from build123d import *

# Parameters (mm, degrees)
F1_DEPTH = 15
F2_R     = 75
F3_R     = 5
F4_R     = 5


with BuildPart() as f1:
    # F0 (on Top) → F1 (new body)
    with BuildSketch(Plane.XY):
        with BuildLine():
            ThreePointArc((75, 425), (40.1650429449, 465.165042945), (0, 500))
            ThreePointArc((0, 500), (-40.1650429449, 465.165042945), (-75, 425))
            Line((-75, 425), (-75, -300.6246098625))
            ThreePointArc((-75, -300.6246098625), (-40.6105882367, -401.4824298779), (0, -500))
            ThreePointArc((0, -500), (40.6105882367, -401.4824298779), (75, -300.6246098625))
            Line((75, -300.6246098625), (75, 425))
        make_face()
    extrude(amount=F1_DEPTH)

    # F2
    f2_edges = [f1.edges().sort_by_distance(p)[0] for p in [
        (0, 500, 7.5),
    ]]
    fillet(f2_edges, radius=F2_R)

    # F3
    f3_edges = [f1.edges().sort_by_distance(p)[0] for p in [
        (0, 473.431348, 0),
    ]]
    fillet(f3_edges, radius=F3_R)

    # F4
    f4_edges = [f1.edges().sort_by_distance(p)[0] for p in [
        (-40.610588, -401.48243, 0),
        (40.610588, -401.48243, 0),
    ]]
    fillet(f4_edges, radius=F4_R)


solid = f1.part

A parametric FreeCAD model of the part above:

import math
import FreeCAD as App
import Part
import Sketcher


def edges_at(feature, points):
    """Names of the edges that pass closest to the given points."""
    edges = feature.Shape.Edges
    near = lambda p: min(range(len(edges)), key=lambda i: edges[i].distToShape(Part.Vertex(*p))[0])
    return sorted({f"Edge{near(p) + 1}" for p in points})

doc = App.newDocument("Part")
body = doc.addObject("PartDesign::Body", "Body")

sketch1 = doc.addObject("Sketcher::SketchObject", "Sketch")
body.addObject(sketch1)
sketch1.AttachmentSupport = (doc.XY_Plane, [""])
sketch1.MapMode = "FlatFace"
sketch1.addGeometry([
    Part.ArcOfCircle(Part.Circle(App.Vector(-225, 200, 0), App.Vector(0, 0, 1), 375), math.radians(36.87), math.radians(53.13)),
    Part.ArcOfCircle(Part.Circle(App.Vector(225, 200, 0), App.Vector(0, 0, 1), 375), math.radians(126.87), math.radians(143.13)),
    Part.LineSegment(App.Vector(-75, 425, 0), App.Vector(-75, -301, 0)),
    Part.ArcOfCircle(Part.Circle(App.Vector(1558, 200, 0), App.Vector(0, 0, 1), 1708), math.radians(-162.96), math.radians(-155.81)),
    Part.ArcOfCircle(Part.Circle(App.Vector(-1558, 200, 0), App.Vector(0, 0, 1), 1708), math.radians(-24.19), math.radians(-17.04)),
    Part.LineSegment(App.Vector(75, -301, 0), App.Vector(75, 425, 0)),
], False)
sketch1.addConstraint([
    Sketcher.Constraint("Coincident", 0, 2, 1, 1),
    Sketcher.Constraint("Coincident", 1, 2, 2, 1),
    Sketcher.Constraint("Coincident", 2, 2, 3, 1),
    Sketcher.Constraint("Coincident", 3, 2, 4, 1),
    Sketcher.Constraint("Coincident", 4, 2, 5, 1),
    Sketcher.Constraint("Coincident", 5, 2, 0, 1),
    Sketcher.Constraint("Vertical", 2),
    Sketcher.Constraint("Vertical", 5),
    Sketcher.Constraint("Equal", 0, 1),
    Sketcher.Constraint("Equal", 3, 4),
    Sketcher.Constraint("Symmetric", 0, 3, 1, 3, -2),
    Sketcher.Constraint("Symmetric", 3, 3, 4, 3, -2),
    Sketcher.Constraint("Horizontal", 1, 3, 3, 3),
    Sketcher.Constraint("Equal", 2, 5),
    Sketcher.Constraint("Radius", 0, 375.0),
    Sketcher.Constraint("DistanceX", 0, 3, -1, 1, 225.0),
    Sketcher.Constraint("DistanceY", -1, 1, 0, 3, 200.0),
    Sketcher.Constraint("DistanceX", 2, 2, -1, 1, 75.0),
    Sketcher.Constraint("Radius", 3, 1708.333333),
    Sketcher.Constraint("DistanceY", 2, 2, 2, 1, 725.62461),
])
pad1 = doc.addObject("PartDesign::Pad", "Pad")
body.addObject(pad1)
pad1.Profile = sketch1
pad1.Length = 15
doc.recompute()

fillet = doc.addObject("PartDesign::Fillet", "Fillet")
body.addObject(fillet)
fillet.Base = (pad1, edges_at(pad1, [(0, 500, 7.5)]))
fillet.Radius = 75
doc.recompute()

fillet2 = doc.addObject("PartDesign::Fillet", "Fillet001")
body.addObject(fillet2)
fillet2.Base = (fillet, edges_at(fillet, [(0, 473.431, 0)]))
fillet2.Radius = 5
doc.recompute()

fillet3 = doc.addObject("PartDesign::Fillet", "Fillet002")
body.addObject(fillet3)
fillet3.Base = (fillet2, edges_at(fillet2, [(-40.611, -401.482, 0), (40.611, -401.482, 0)]))
fillet3.Radius = 5

doc.recompute()
